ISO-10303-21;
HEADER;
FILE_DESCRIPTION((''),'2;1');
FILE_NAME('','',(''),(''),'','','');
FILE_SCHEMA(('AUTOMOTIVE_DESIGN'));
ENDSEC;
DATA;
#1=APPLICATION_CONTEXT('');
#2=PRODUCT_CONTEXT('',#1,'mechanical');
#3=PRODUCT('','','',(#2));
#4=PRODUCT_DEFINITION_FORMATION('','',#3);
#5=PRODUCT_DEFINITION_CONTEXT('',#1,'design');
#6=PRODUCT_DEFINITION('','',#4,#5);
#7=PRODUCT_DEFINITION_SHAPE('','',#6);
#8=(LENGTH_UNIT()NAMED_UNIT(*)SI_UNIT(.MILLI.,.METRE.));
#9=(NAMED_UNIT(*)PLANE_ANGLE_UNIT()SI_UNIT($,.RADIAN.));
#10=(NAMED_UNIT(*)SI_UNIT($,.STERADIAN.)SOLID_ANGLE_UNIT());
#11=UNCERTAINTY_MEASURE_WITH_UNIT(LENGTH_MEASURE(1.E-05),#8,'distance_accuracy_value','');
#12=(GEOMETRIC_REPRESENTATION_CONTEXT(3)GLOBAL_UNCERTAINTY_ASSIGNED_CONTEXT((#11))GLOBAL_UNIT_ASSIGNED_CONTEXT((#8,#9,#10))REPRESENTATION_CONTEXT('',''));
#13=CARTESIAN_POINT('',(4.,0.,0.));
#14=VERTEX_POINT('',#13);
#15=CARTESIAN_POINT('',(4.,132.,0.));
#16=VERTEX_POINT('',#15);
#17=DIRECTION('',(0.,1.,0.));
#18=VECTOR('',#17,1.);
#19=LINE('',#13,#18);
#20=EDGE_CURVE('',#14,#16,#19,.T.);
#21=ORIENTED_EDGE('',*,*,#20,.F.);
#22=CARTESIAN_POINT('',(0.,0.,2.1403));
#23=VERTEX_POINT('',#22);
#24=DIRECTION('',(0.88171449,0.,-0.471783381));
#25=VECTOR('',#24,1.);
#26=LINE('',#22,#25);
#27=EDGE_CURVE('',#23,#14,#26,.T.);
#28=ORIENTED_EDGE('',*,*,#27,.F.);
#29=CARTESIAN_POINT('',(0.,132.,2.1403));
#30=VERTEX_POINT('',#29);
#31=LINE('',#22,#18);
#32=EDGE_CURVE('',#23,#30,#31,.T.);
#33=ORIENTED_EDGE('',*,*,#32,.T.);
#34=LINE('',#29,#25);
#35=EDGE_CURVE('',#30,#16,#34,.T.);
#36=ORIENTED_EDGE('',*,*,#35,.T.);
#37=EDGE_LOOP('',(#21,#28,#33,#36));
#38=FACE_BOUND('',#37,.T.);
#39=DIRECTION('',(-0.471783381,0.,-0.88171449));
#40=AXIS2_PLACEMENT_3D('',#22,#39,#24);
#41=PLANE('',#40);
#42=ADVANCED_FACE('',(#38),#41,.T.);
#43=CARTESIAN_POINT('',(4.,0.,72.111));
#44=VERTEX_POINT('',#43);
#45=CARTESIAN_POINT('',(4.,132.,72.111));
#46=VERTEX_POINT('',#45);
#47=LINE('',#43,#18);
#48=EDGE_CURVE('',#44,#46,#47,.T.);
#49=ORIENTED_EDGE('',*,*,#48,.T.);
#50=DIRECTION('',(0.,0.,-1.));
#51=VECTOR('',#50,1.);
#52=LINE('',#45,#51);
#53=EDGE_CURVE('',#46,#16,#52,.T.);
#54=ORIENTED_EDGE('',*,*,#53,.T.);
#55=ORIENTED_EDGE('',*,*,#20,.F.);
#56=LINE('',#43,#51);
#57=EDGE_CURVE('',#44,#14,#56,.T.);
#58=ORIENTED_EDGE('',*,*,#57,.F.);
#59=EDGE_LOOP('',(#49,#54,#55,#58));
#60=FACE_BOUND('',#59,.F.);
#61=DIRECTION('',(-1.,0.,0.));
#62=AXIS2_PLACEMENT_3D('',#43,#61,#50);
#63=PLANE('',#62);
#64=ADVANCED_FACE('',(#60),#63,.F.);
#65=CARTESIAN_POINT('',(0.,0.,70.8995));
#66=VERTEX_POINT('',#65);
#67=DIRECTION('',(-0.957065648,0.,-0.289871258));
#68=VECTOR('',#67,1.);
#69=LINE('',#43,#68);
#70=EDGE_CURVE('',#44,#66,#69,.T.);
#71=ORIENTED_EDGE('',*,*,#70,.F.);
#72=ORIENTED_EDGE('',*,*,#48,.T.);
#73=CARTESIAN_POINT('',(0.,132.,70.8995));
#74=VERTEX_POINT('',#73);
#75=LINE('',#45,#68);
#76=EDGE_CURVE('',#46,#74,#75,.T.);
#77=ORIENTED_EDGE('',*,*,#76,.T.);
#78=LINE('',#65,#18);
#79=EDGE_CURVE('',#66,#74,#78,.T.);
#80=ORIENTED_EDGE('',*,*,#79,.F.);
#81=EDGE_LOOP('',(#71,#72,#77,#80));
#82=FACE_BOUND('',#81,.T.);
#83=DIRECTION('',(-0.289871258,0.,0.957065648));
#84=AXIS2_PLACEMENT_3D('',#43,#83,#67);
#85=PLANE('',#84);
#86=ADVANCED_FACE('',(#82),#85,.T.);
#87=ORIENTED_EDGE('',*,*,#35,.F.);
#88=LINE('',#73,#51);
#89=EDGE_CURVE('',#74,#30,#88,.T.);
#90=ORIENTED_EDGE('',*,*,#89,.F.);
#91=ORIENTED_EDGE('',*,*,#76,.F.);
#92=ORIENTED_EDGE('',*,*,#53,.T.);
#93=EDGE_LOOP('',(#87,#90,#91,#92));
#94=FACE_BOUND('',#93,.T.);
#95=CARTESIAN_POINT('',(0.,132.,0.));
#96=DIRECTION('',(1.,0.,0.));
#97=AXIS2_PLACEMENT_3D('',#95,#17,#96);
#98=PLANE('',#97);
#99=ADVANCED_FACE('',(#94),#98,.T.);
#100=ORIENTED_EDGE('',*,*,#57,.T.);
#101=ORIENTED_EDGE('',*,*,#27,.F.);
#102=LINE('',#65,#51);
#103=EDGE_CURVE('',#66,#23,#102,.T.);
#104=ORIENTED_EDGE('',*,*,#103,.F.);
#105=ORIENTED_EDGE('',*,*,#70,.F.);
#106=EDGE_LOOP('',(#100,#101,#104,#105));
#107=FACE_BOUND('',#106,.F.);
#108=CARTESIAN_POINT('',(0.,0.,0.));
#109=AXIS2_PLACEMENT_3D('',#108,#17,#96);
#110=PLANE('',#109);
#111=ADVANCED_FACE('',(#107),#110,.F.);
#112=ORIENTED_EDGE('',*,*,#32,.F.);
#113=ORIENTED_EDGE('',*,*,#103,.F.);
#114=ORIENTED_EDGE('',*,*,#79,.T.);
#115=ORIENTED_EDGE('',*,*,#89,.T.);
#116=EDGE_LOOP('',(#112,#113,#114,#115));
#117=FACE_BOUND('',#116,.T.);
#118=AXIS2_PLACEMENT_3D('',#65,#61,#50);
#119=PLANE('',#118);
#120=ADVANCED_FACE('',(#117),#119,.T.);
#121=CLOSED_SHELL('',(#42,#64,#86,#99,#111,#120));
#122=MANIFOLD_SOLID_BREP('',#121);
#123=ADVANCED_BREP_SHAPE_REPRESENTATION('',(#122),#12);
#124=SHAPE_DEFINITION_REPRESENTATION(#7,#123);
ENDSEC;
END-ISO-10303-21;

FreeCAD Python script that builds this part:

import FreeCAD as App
import Part
import Sketcher
Q = App.Units.Quantity


def add_polygon(sketch, points):
    """Adds a closed chain of lines whose ends are joined by coincident constraints."""
    first, n = sketch.GeometryCount, len(points)
    for a, b in zip(points, points[1:] + points[:1]):
        sketch.addGeometry(Part.LineSegment(App.Vector(*a, 0), App.Vector(*b, 0)), False)
    for i in range(n):
        sketch.addConstraint(Sketcher.Constraint("Coincident", first + i, 2, first + (i + 1) % n, 1))

doc = App.newDocument("Part")
body = doc.addObject("PartDesign::Body", "Body")

# Sketch on XZ plane
sketch1 = body.newObject("Sketcher::SketchObject", "Sketch")
sketch1.AttachmentSupport = (doc.getObject("XZ_Plane"), [""])
sketch1.MapMode = "FlatFace"
add_polygon(sketch1, [(0, 2.1), (0, 70.9), (4, 72.1), (4, 0)])  # lines 0-3
sketch1.addConstraint([
    Sketcher.Constraint("Vertical", 0),
    Sketcher.Constraint("Vertical", 2),
    Sketcher.Constraint("PointOnObject", 0, 2, -2),
    Sketcher.Constraint("PointOnObject", 2, 2, -1),
    Sketcher.Constraint("DistanceY", 2, 2, 2, 1, Q("72.111 mm")),
    Sketcher.Constraint("DistanceX", -1, 1, 1, 2, Q("4 mm")),
    Sketcher.Constraint("Angle", 1, Q("16.8502 deg")),
    Sketcher.Constraint("Angle", 3, Q("151.8499 deg")),
])
pad1 = body.newObject("PartDesign::Pad", "Pad")
pad1.Profile = sketch1
pad1.Length = 132
pad1.Reversed = True

doc.recompute()
